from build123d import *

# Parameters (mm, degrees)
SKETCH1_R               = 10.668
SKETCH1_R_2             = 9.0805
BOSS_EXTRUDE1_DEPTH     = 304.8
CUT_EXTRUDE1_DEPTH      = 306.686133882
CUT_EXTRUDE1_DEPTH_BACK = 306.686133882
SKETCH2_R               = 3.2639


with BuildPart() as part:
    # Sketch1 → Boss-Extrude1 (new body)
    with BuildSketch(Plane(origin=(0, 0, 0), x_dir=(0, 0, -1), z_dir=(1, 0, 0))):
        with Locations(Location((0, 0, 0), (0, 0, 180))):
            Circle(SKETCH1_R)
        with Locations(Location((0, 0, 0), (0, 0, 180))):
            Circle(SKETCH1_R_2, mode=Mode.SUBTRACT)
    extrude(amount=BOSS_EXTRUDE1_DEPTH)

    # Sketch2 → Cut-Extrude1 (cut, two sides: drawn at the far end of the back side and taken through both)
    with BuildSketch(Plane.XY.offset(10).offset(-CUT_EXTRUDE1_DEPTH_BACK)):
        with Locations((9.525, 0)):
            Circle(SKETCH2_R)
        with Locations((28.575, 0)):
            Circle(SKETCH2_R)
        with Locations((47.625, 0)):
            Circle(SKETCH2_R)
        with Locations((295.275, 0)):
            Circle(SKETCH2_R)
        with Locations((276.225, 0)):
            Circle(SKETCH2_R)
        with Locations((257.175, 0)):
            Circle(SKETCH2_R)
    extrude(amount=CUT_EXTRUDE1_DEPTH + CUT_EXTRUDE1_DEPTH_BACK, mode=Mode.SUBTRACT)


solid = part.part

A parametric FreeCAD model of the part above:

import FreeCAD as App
import Part
import Sketcher
Q = App.Units.Quantity

doc = App.newDocument("Part")
body = doc.addObject("PartDesign::Body", "Body")

sketch1 = body.newObject("Sketcher::SketchObject", "Sketch")
sketch1.AttachmentSupport = (doc.getObject("YZ_Plane"), [""])
sketch1.MapMode = "FlatFace"
sketch1.addGeometry([
    Part.Circle(App.Vector(0, 0, 0), App.Vector(0, 0, 1), 10.668),
    Part.Circle(App.Vector(0, 0, 0), App.Vector(0, 0, 1), 9.0805),
], False)
sketch1.addConstraint([
    Sketcher.Constraint("Coincident", 0, 3, -1, 1),
    Sketcher.Constraint("Coincident", 1, 3, -1, 1),
    Sketcher.Constraint("Diameter", 0, Q("0.84 in")),
    Sketcher.Constraint("Diameter", 1, Q("0.715 in")),
])
pad1 = body.newObject("PartDesign::Pad", "Pad")
pad1.Profile = sketch1
pad1.Length = Q("12 in")

sketch2 = body.newObject("Sketcher::SketchObject", "Sketch001")
sketch2.AttachmentSupport = (doc.getObject("XY_Plane"), [""])
sketch2.MapMode = "FlatFace"
sketch2.AttachmentOffset = App.Placement(App.Vector(0, 0, 10), App.Rotation())
sketch2.addGeometry([
    Part.Circle(App.Vector(9.525, 0, 0), App.Vector(0, 0, 1), 3.2639),
    Part.Circle(App.Vector(28.575, 0, 0), App.Vector(0, 0, 1), 3.2639),
    Part.Circle(App.Vector(47.625, 0, 0), App.Vector(0, 0, 1), 3.2639),
    Part.Circle(App.Vector(295.275, 0, 0), App.Vector(0, 0, 1), 3.2639),
    Part.Circle(App.Vector(276.225, 0, 0), App.Vector(0, 0, 1), 3.2639),
    Part.Circle(App.Vector(257.175, 0, 0), App.Vector(0, 0, 1), 3.2639),
], False)
sketch2.addConstraint([
    Sketcher.Constraint("Equal", 0, 1),
    Sketcher.Constraint("Equal", 1, 2),
    Sketcher.Constraint("Equal", 2, 3),
    Sketcher.Constraint("Equal", 3, 4),
    Sketcher.Constraint("Equal", 4, 5),
    Sketcher.Constraint("PointOnObject", 0, 3, -1),
    Sketcher.Constraint("PointOnObject", 1, 3, -1),
    Sketcher.Constraint("PointOnObject", 2, 3, -1),
    Sketcher.Constraint("PointOnObject", 3, 3, -1),
    Sketcher.Constraint("PointOnObject", 4, 3, -1),
    Sketcher.Constraint("PointOnObject", 5, 3, -1),
    Sketcher.Constraint("Diameter", 0, Q("0.257 in")),
    Sketcher.Constraint("DistanceX", 2, 3, 4, 3, Q("9 in")),
    Sketcher.Constraint("DistanceX", 1, 3, 5, 3, Q("9 in")),
    Sketcher.Constraint("DistanceX", 0, 3, 2, 3, Q("1.5 in")),
    Sketcher.Constraint("DistanceX", 1, 3, 3, 3, Q("10.5 in")),
    Sketcher.Constraint("DistanceX", 0, 3, 1, 3, Q("0.75 in")),
    Sketcher.Constraint("DistanceX", -1, 1, 0, 3, Q("0.375 in")),
])
pocket1 = body.newObject("PartDesign::Pocket", "Pocket")
pocket1.Profile = sketch2
pocket1.Type = "ThroughAll"
pocket1.Midplane = True

doc.recompute()
